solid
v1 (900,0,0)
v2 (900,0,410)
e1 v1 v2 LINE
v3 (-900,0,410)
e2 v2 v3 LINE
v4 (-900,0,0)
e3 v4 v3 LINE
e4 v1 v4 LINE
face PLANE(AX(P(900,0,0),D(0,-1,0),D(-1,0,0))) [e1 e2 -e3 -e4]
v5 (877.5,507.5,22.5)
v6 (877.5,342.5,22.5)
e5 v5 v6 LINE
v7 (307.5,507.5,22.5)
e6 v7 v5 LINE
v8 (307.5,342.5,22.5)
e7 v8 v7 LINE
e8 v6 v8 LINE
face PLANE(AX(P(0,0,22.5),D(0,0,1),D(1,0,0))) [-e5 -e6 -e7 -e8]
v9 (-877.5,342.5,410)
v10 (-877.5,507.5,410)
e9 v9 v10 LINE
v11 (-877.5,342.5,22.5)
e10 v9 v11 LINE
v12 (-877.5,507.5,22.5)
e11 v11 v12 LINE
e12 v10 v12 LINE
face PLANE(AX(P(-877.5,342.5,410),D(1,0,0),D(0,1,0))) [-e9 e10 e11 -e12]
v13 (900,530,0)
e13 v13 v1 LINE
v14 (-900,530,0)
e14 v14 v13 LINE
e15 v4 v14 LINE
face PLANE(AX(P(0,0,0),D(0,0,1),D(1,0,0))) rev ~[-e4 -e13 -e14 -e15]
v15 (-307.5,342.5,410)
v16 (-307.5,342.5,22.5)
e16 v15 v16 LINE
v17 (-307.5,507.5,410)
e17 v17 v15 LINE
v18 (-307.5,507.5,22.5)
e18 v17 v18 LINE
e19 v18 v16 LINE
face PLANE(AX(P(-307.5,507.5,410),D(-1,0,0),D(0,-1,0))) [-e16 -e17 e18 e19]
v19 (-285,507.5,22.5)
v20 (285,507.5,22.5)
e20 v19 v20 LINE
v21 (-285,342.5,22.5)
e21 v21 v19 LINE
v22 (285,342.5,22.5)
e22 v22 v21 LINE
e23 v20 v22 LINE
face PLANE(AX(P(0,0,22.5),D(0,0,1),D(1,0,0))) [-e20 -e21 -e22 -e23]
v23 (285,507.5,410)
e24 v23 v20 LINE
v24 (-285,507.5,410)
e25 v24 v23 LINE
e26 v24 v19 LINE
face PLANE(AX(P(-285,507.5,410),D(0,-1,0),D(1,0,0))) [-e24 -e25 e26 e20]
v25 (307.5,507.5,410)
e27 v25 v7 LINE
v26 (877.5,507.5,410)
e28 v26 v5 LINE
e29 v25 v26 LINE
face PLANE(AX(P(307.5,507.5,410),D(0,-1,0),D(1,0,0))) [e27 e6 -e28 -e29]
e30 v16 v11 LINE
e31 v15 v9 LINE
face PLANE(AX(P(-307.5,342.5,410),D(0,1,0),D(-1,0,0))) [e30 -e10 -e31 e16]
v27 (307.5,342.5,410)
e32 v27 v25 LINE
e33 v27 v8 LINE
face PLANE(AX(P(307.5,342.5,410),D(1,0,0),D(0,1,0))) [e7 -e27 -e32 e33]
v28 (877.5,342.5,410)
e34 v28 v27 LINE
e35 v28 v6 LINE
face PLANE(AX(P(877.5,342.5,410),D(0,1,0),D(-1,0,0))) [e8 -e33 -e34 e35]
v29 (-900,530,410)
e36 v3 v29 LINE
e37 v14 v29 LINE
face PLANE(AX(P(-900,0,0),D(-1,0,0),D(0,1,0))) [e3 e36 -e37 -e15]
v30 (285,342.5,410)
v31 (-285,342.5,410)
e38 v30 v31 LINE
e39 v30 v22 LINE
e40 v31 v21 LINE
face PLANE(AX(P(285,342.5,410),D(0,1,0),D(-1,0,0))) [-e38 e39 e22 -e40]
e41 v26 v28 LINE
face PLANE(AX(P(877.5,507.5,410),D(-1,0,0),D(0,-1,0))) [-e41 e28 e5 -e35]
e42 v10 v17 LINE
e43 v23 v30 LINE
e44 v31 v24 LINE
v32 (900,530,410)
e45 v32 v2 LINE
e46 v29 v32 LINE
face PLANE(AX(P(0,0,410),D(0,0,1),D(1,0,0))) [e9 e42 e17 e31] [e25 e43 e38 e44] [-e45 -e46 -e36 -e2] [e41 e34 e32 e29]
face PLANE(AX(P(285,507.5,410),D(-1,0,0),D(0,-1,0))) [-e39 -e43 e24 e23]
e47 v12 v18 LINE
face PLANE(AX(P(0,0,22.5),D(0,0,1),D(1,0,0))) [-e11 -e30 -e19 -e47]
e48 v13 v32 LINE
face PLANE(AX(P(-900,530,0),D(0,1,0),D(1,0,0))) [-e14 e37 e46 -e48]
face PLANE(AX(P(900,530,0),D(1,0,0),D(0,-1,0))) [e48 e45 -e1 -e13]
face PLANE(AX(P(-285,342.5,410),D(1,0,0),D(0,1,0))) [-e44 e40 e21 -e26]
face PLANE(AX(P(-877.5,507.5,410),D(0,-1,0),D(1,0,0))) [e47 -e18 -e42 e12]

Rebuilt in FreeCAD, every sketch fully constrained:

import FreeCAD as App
import Part
import Sketcher


def add_polygon(sketch, points):
    """Adds a closed chain of lines whose ends are joined by coincident constraints."""
    first, n = sketch.GeometryCount, len(points)
    for a, b in zip(points, points[1:] + points[:1]):
        sketch.addGeometry(Part.LineSegment(App.Vector(*a, 0), App.Vector(*b, 0)), False)
    for i in range(n):
        sketch.addConstraint(Sketcher.Constraint("Coincident", first + i, 2, first + (i + 1) % n, 1))

doc = App.newDocument("Part")
body = doc.addObject("PartDesign::Body", "Body")

# Sketch on XY plane
sketch1 = doc.addObject("Sketcher::SketchObject", "Sketch")
body.addObject(sketch1)
sketch1.AttachmentSupport = (doc.XY_Plane, [""])
sketch1.MapMode = "FlatFace"
add_polygon(sketch1, [(900, 530), (-900, 530), (-900, 0), (900, 0)])  # lines 0-3
sketch1.addConstraint(Sketcher.Constraint("Horizontal", 0))
sketch1.addConstraint(Sketcher.Constraint("Vertical", 1))
sketch1.addConstraint(Sketcher.Constraint("Horizontal", 2))
sketch1.addConstraint(Sketcher.Constraint("Vertical", 3))
sketch1.addConstraint(Sketcher.Constraint("Symmetric", 1, 2, 2, 2, -1, 1))
sketch1.addConstraint(Sketcher.Constraint("DistanceX", 0, 2, 0, 1, 1800.0))
sketch1.addConstraint(Sketcher.Constraint("DistanceY", 1, 2, 1, 1, 530.0))
pad1 = doc.addObject("PartDesign::Pad", "Pad")
body.addObject(pad1)
pad1.Profile = sketch1
pad1.Length = 410

# Sketch on XY plane
sketch2 = doc.addObject("Sketcher::SketchObject", "Sketch001")
body.addObject(sketch2)
sketch2.AttachmentSupport = (doc.XY_Plane, [""])
sketch2.MapMode = "FlatFace"
sketch2.AttachmentOffset = App.Placement(App.Vector(0, 0, 410), App.Rotation())
add_polygon(sketch2, [(-307.5, 507.5), (-877.5, 507.5), (-877.5, 342.5), (-307.5, 342.5)])  # lines 0-3
add_polygon(sketch2, [(285, 507.5), (-285, 507.5), (-285, 342.5), (285, 342.5)])  # lines 4-7
add_polygon(sketch2, [(877.5, 507.5), (307.5, 507.5), (307.5, 342.5), (877.5, 342.5)])  # lines 8-11
sketch2.addConstraint(Sketcher.Constraint("Horizontal", 0))
sketch2.addConstraint(Sketcher.Constraint("Vertical", 1))
sketch2.addConstraint(Sketcher.Constraint("Horizontal", 2))
sketch2.addConstraint(Sketcher.Constraint("Vertical", 3))
sketch2.addConstraint(Sketcher.Constraint("Horizontal", 4))
sketch2.addConstraint(Sketcher.Constraint("Vertical", 5))
sketch2.addConstraint(Sketcher.Constraint("Horizontal", 6))
sketch2.addConstraint(Sketcher.Constraint("Vertical", 7))
sketch2.addConstraint(Sketcher.Constraint("Horizontal", 8))
sketch2.addConstraint(Sketcher.Constraint("Vertical", 9))
sketch2.addConstraint(Sketcher.Constraint("Horizontal", 10))
sketch2.addConstraint(Sketcher.Constraint("Vertical", 11))
sketch2.addConstraint(Sketcher.Constraint("Symmetric", 3, 2, 8, 2, -2))
sketch2.addConstraint(Sketcher.Constraint("Symmetric", 1, 2, 10, 2, -2))
sketch2.addConstraint(Sketcher.Constraint("Horizontal", 3, 2, 4, 2))
sketch2.addConstraint(Sketcher.Constraint("Horizontal", 2, 2, 5, 2))
sketch2.addConstraint(Sketcher.Constraint("Equal", 2, 4))
sketch2.addConstraint(Sketcher.Constraint("DistanceX", 0, 2, 0, 1, 570.0))
sketch2.addConstraint(Sketcher.Constraint("DistanceY", 1, 2, 1, 1, 165.0))
sketch2.addConstraint(Sketcher.Constraint("DistanceX", 3, 2, 4, 2, 22.5))
sketch2.addConstraint(Sketcher.Constraint("DistanceX", 7, 2, 8, 2, 22.5))
sketch2.addConstraint(Sketcher.Constraint("DistanceY", -1, 1, 0, 2, 507.5))
pocket1 = doc.addObject("PartDesign::Pocket", "Pocket")
body.addObject(pocket1)
pocket1.Profile = sketch2
pocket1.Length = 387.5

doc.recompute()
